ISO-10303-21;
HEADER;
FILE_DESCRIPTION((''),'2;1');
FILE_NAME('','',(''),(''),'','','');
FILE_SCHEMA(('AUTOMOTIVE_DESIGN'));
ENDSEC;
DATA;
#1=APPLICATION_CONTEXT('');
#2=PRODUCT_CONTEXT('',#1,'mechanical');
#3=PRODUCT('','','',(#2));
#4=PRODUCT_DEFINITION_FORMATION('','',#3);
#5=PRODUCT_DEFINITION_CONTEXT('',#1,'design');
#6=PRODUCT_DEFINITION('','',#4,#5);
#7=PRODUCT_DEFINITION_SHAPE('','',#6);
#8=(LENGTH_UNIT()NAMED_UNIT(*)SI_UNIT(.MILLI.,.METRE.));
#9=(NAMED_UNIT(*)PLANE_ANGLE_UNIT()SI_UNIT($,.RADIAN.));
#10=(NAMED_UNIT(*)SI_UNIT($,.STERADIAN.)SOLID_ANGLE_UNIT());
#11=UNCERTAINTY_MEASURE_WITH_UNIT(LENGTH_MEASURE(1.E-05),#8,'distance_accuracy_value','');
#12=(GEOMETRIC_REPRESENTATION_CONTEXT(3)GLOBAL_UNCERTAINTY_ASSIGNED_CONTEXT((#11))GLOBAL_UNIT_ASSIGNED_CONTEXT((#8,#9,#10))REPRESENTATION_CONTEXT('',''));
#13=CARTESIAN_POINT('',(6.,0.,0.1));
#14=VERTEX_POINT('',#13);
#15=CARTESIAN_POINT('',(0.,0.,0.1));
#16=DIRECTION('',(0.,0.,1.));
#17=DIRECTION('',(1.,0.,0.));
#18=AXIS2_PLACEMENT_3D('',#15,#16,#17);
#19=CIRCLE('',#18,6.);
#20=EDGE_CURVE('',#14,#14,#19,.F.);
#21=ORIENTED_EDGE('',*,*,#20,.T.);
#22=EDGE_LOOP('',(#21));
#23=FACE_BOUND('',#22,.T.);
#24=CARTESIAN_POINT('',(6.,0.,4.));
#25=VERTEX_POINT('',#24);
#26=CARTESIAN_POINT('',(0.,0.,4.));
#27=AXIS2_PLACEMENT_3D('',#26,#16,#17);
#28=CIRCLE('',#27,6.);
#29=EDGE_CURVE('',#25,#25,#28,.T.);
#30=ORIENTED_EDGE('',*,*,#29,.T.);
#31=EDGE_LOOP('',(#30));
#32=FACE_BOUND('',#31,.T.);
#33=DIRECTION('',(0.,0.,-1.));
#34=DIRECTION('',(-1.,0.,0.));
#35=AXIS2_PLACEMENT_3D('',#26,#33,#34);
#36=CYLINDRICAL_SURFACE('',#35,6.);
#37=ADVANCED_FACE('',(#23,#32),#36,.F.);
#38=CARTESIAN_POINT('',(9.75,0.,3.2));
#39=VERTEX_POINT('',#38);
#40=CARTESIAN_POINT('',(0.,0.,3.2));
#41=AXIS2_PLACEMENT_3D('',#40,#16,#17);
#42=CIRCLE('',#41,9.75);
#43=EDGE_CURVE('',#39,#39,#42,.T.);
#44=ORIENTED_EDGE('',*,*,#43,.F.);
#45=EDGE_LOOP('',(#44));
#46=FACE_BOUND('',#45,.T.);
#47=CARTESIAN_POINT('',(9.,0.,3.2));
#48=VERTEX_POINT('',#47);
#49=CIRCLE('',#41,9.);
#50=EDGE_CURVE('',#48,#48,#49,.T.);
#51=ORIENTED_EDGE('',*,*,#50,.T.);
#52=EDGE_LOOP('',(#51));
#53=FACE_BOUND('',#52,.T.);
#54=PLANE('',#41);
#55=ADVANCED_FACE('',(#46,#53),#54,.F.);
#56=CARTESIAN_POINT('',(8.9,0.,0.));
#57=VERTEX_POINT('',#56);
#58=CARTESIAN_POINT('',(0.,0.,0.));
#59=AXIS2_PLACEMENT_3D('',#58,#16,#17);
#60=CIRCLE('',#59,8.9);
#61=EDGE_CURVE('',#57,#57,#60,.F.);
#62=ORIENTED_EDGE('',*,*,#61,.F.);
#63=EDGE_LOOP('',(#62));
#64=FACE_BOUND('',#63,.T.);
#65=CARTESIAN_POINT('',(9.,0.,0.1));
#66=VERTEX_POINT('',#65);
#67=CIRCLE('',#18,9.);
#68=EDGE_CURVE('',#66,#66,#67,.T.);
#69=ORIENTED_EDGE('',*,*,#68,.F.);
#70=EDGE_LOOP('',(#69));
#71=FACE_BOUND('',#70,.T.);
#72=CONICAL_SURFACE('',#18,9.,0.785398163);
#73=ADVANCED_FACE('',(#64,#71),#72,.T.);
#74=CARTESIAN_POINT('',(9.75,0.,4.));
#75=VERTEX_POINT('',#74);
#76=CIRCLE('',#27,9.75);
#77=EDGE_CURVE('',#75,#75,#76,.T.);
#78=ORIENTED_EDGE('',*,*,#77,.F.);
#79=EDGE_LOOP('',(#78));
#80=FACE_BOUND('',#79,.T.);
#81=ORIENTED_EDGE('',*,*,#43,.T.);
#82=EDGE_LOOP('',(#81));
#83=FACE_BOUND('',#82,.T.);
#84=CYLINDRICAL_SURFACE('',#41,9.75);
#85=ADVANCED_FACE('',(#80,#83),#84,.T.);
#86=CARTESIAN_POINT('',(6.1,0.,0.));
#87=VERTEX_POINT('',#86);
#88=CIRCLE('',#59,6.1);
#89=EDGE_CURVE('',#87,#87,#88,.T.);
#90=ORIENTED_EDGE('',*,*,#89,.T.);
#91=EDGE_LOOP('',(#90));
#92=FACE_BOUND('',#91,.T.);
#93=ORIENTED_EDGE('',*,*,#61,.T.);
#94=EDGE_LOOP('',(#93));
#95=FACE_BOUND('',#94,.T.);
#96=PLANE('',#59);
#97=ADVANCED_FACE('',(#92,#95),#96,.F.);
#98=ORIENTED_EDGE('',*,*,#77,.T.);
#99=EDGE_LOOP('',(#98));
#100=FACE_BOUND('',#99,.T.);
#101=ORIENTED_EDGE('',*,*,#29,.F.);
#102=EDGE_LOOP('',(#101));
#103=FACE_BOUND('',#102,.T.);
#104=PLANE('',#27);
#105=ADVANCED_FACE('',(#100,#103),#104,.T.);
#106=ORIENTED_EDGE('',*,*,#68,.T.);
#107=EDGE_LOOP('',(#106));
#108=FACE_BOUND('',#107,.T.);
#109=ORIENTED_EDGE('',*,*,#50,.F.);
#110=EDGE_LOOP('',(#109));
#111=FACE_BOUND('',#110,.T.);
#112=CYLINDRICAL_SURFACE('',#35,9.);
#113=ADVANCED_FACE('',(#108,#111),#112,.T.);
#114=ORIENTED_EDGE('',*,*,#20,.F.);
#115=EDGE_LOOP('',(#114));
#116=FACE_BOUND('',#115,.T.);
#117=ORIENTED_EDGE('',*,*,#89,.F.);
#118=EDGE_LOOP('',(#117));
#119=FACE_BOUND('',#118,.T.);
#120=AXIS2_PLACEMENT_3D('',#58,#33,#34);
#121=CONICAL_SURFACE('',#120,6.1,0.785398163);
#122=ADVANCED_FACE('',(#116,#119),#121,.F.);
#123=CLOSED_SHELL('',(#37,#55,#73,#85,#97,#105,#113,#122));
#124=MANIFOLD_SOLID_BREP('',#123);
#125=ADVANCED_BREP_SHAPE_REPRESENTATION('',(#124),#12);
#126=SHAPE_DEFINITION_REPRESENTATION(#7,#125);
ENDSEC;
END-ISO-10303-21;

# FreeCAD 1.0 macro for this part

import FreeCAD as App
import Part
import Sketcher
from FreeCAD import Vector


def edges_at(feature, points):
    """Names of the edges that pass closest to the given points."""
    edges = feature.Shape.Edges
    near = lambda p: min(range(len(edges)), key=lambda i: edges[i].distToShape(Part.Vertex(*p))[0])
    return sorted({f"Edge{near(p) + 1}" for p in points})

doc = App.newDocument("Part")
body = doc.addObject("PartDesign::Body", "Body")

# Sketch on XY plane
sketch1 = body.newObject("Sketcher::SketchObject", "Sketch")
sketch1.AttachmentSupport = (doc.getObject("XY_Plane"), [""])
sketch1.MapMode = "FlatFace"
sketch1.addGeometry([
    Part.Circle(Vector(0, 0, 0), Vector(0, 0, 1), 9),
    Part.Circle(Vector(0, 0, 0), Vector(0, 0, 1), 6),
], False)
sketch1.addConstraint([
    Sketcher.Constraint("Coincident", 0, 3, -1, 1),
    Sketcher.Constraint("Coincident", 1, 3, -1, 1),
    Sketcher.Constraint("Diameter", 0, 18.0),
    Sketcher.Constraint("Diameter", 1, 12.0),
])
pad1 = body.newObject("PartDesign::Pad", "Pad")
pad1.Profile = sketch1
pad1.Length = 4
doc.recompute()

chamfer = body.newObject("PartDesign::Chamfer", "Chamfer")
chamfer.Base = (pad1, edges_at(pad1, [(-9, 0, 0), (-6, 0, 0)]))
chamfer.Size = 0.1

# Sketch on XY plane
sketch2 = body.newObject("Sketcher::SketchObject", "Sketch001")
sketch2.AttachmentSupport = (doc.getObject("XY_Plane"), [""])
sketch2.MapMode = "FlatFace"
sketch2.AttachmentOffset = App.Placement(Vector(0, 0, 3.2), App.Rotation())
sketch2.addGeometry([
    Part.Circle(Vector(0, 0, 0), Vector(0, 0, 1), 9.75),
    Part.Circle(Vector(0, 0, 0), Vector(0, 0, 1), 6),
], False)
sketch2.addConstraint([
    Sketcher.Constraint("Coincident", 0, 3, -1, 1),
    Sketcher.Constraint("Coincident", 1, 3, -1, 1),
    Sketcher.Constraint("Diameter", 1, 12.0),
    Sketcher.Constraint("Diameter", 0, 19.5),
])
pad2 = body.newObject("PartDesign::Pad", "Pad001")
pad2.Profile = sketch2
pad2.Length = 0.8

doc.recompute()
